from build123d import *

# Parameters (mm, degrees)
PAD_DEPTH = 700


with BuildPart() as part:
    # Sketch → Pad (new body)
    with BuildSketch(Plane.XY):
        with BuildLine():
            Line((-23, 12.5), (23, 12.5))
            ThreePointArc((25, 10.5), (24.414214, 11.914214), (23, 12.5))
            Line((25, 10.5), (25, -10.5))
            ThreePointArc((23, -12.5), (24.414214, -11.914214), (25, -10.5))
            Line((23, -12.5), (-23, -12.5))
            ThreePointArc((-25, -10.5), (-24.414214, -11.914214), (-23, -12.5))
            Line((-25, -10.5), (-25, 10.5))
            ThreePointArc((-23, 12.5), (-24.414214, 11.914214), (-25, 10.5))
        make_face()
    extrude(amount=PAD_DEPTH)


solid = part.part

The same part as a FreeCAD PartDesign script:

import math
import FreeCAD as App
import Part
import Sketcher
Q = App.Units.Quantity

doc = App.newDocument("Part")
params = doc.addObject("Spreadsheet::Sheet", "Params")
for row, (alias, value) in enumerate([
    ("sketch1_radius", "1.999999 mm"),
    ("sketch1_width", "46 mm"),
    ("sketch1_height", "21 mm"),
    ("pad1_length", "700 mm"),
], start=1):
    params.set(f"A{row}", alias)
    params.set(f"B{row}", "=" + value)
    params.setAlias(f"B{row}", alias)

body = doc.addObject("PartDesign::Body", "Body")

# Sketch on XY plane
sketch1 = body.newObject("Sketcher::SketchObject", "Sketch")
sketch1.AttachmentSupport = (doc.getObject("XY_Plane"), [""])
sketch1.MapMode = "FlatFace"
sketch1.addGeometry([
    Part.LineSegment(App.Vector(23, 12.5, 0), App.Vector(-23, 12.5, 0)),  # 0
    Part.ArcOfCircle(Part.Circle(App.Vector(-23.000001, 10.500001, 0), App.Vector(0, 0, 1), 1.999999), math.radians(89.999957), math.radians(180.000043)),  # 1
    Part.LineSegment(App.Vector(-25, 10.5, 0), App.Vector(-25, -10.5, 0)),  # 2
    Part.ArcOfCircle(Part.Circle(App.Vector(-23.000001, -10.500001, 0), App.Vector(0, 0, 1), 1.999999), math.radians(179.999957), math.radians(270.000043)),  # 3
    Part.LineSegment(App.Vector(-23, -12.5, 0), App.Vector(23, -12.5, 0)),  # 4
    Part.ArcOfCircle(Part.Circle(App.Vector(23.000001, -10.500001, 0), App.Vector(0, 0, 1), 1.999999), math.radians(-90.000043), math.radians(0.000043)),  # 5
    Part.LineSegment(App.Vector(25, -10.5, 0), App.Vector(25, 10.5, 0)),  # 6
    Part.ArcOfCircle(Part.Circle(App.Vector(23.000001, 10.500001, 0), App.Vector(0, 0, 1), 1.999999), math.radians(-0.000043), math.radians(90.000043)),  # 7
], False)
sketch1.addConstraint([
    Sketcher.Constraint("Tangent", 0, 2, 1, 1),
    Sketcher.Constraint("Tangent", 1, 2, 2, 1),
    Sketcher.Constraint("Tangent", 2, 2, 3, 1),
    Sketcher.Constraint("Tangent", 3, 2, 4, 1),
    Sketcher.Constraint("Tangent", 4, 2, 5, 1),
    Sketcher.Constraint("Tangent", 5, 2, 6, 1),
    Sketcher.Constraint("Tangent", 6, 2, 7, 1),
    Sketcher.Constraint("Tangent", 7, 2, 0, 1),
    Sketcher.Constraint("Horizontal", 0),
    Sketcher.Constraint("Vertical", 2),
    Sketcher.Constraint("Horizontal", 4),
    Sketcher.Constraint("Vertical", 6),
    Sketcher.Constraint("Equal", 1, 3),
    Sketcher.Constraint("Equal", 3, 5),
    Sketcher.Constraint("Equal", 5, 7),
    Sketcher.Constraint("Symmetric", 1, 3, 5, 3, -1, 1),
    Sketcher.Constraint("Radius", 1, Q("1.999999 mm")),
    Sketcher.Constraint("DistanceX", 0, 2, 0, 1, Q("46 mm")),
    Sketcher.Constraint("DistanceY", 2, 2, 2, 1, Q("21 mm")),
])
sketch1.setExpression("Constraints[16]", "Params.sketch1_radius")
sketch1.setExpression("Constraints[17]", "Params.sketch1_width")
sketch1.setExpression("Constraints[18]", "Params.sketch1_height")
pad1 = body.newObject("PartDesign::Pad", "Pad")
pad1.Profile = sketch1
pad1.setExpression("Length", "Params.pad1_length")

doc.recompute()
